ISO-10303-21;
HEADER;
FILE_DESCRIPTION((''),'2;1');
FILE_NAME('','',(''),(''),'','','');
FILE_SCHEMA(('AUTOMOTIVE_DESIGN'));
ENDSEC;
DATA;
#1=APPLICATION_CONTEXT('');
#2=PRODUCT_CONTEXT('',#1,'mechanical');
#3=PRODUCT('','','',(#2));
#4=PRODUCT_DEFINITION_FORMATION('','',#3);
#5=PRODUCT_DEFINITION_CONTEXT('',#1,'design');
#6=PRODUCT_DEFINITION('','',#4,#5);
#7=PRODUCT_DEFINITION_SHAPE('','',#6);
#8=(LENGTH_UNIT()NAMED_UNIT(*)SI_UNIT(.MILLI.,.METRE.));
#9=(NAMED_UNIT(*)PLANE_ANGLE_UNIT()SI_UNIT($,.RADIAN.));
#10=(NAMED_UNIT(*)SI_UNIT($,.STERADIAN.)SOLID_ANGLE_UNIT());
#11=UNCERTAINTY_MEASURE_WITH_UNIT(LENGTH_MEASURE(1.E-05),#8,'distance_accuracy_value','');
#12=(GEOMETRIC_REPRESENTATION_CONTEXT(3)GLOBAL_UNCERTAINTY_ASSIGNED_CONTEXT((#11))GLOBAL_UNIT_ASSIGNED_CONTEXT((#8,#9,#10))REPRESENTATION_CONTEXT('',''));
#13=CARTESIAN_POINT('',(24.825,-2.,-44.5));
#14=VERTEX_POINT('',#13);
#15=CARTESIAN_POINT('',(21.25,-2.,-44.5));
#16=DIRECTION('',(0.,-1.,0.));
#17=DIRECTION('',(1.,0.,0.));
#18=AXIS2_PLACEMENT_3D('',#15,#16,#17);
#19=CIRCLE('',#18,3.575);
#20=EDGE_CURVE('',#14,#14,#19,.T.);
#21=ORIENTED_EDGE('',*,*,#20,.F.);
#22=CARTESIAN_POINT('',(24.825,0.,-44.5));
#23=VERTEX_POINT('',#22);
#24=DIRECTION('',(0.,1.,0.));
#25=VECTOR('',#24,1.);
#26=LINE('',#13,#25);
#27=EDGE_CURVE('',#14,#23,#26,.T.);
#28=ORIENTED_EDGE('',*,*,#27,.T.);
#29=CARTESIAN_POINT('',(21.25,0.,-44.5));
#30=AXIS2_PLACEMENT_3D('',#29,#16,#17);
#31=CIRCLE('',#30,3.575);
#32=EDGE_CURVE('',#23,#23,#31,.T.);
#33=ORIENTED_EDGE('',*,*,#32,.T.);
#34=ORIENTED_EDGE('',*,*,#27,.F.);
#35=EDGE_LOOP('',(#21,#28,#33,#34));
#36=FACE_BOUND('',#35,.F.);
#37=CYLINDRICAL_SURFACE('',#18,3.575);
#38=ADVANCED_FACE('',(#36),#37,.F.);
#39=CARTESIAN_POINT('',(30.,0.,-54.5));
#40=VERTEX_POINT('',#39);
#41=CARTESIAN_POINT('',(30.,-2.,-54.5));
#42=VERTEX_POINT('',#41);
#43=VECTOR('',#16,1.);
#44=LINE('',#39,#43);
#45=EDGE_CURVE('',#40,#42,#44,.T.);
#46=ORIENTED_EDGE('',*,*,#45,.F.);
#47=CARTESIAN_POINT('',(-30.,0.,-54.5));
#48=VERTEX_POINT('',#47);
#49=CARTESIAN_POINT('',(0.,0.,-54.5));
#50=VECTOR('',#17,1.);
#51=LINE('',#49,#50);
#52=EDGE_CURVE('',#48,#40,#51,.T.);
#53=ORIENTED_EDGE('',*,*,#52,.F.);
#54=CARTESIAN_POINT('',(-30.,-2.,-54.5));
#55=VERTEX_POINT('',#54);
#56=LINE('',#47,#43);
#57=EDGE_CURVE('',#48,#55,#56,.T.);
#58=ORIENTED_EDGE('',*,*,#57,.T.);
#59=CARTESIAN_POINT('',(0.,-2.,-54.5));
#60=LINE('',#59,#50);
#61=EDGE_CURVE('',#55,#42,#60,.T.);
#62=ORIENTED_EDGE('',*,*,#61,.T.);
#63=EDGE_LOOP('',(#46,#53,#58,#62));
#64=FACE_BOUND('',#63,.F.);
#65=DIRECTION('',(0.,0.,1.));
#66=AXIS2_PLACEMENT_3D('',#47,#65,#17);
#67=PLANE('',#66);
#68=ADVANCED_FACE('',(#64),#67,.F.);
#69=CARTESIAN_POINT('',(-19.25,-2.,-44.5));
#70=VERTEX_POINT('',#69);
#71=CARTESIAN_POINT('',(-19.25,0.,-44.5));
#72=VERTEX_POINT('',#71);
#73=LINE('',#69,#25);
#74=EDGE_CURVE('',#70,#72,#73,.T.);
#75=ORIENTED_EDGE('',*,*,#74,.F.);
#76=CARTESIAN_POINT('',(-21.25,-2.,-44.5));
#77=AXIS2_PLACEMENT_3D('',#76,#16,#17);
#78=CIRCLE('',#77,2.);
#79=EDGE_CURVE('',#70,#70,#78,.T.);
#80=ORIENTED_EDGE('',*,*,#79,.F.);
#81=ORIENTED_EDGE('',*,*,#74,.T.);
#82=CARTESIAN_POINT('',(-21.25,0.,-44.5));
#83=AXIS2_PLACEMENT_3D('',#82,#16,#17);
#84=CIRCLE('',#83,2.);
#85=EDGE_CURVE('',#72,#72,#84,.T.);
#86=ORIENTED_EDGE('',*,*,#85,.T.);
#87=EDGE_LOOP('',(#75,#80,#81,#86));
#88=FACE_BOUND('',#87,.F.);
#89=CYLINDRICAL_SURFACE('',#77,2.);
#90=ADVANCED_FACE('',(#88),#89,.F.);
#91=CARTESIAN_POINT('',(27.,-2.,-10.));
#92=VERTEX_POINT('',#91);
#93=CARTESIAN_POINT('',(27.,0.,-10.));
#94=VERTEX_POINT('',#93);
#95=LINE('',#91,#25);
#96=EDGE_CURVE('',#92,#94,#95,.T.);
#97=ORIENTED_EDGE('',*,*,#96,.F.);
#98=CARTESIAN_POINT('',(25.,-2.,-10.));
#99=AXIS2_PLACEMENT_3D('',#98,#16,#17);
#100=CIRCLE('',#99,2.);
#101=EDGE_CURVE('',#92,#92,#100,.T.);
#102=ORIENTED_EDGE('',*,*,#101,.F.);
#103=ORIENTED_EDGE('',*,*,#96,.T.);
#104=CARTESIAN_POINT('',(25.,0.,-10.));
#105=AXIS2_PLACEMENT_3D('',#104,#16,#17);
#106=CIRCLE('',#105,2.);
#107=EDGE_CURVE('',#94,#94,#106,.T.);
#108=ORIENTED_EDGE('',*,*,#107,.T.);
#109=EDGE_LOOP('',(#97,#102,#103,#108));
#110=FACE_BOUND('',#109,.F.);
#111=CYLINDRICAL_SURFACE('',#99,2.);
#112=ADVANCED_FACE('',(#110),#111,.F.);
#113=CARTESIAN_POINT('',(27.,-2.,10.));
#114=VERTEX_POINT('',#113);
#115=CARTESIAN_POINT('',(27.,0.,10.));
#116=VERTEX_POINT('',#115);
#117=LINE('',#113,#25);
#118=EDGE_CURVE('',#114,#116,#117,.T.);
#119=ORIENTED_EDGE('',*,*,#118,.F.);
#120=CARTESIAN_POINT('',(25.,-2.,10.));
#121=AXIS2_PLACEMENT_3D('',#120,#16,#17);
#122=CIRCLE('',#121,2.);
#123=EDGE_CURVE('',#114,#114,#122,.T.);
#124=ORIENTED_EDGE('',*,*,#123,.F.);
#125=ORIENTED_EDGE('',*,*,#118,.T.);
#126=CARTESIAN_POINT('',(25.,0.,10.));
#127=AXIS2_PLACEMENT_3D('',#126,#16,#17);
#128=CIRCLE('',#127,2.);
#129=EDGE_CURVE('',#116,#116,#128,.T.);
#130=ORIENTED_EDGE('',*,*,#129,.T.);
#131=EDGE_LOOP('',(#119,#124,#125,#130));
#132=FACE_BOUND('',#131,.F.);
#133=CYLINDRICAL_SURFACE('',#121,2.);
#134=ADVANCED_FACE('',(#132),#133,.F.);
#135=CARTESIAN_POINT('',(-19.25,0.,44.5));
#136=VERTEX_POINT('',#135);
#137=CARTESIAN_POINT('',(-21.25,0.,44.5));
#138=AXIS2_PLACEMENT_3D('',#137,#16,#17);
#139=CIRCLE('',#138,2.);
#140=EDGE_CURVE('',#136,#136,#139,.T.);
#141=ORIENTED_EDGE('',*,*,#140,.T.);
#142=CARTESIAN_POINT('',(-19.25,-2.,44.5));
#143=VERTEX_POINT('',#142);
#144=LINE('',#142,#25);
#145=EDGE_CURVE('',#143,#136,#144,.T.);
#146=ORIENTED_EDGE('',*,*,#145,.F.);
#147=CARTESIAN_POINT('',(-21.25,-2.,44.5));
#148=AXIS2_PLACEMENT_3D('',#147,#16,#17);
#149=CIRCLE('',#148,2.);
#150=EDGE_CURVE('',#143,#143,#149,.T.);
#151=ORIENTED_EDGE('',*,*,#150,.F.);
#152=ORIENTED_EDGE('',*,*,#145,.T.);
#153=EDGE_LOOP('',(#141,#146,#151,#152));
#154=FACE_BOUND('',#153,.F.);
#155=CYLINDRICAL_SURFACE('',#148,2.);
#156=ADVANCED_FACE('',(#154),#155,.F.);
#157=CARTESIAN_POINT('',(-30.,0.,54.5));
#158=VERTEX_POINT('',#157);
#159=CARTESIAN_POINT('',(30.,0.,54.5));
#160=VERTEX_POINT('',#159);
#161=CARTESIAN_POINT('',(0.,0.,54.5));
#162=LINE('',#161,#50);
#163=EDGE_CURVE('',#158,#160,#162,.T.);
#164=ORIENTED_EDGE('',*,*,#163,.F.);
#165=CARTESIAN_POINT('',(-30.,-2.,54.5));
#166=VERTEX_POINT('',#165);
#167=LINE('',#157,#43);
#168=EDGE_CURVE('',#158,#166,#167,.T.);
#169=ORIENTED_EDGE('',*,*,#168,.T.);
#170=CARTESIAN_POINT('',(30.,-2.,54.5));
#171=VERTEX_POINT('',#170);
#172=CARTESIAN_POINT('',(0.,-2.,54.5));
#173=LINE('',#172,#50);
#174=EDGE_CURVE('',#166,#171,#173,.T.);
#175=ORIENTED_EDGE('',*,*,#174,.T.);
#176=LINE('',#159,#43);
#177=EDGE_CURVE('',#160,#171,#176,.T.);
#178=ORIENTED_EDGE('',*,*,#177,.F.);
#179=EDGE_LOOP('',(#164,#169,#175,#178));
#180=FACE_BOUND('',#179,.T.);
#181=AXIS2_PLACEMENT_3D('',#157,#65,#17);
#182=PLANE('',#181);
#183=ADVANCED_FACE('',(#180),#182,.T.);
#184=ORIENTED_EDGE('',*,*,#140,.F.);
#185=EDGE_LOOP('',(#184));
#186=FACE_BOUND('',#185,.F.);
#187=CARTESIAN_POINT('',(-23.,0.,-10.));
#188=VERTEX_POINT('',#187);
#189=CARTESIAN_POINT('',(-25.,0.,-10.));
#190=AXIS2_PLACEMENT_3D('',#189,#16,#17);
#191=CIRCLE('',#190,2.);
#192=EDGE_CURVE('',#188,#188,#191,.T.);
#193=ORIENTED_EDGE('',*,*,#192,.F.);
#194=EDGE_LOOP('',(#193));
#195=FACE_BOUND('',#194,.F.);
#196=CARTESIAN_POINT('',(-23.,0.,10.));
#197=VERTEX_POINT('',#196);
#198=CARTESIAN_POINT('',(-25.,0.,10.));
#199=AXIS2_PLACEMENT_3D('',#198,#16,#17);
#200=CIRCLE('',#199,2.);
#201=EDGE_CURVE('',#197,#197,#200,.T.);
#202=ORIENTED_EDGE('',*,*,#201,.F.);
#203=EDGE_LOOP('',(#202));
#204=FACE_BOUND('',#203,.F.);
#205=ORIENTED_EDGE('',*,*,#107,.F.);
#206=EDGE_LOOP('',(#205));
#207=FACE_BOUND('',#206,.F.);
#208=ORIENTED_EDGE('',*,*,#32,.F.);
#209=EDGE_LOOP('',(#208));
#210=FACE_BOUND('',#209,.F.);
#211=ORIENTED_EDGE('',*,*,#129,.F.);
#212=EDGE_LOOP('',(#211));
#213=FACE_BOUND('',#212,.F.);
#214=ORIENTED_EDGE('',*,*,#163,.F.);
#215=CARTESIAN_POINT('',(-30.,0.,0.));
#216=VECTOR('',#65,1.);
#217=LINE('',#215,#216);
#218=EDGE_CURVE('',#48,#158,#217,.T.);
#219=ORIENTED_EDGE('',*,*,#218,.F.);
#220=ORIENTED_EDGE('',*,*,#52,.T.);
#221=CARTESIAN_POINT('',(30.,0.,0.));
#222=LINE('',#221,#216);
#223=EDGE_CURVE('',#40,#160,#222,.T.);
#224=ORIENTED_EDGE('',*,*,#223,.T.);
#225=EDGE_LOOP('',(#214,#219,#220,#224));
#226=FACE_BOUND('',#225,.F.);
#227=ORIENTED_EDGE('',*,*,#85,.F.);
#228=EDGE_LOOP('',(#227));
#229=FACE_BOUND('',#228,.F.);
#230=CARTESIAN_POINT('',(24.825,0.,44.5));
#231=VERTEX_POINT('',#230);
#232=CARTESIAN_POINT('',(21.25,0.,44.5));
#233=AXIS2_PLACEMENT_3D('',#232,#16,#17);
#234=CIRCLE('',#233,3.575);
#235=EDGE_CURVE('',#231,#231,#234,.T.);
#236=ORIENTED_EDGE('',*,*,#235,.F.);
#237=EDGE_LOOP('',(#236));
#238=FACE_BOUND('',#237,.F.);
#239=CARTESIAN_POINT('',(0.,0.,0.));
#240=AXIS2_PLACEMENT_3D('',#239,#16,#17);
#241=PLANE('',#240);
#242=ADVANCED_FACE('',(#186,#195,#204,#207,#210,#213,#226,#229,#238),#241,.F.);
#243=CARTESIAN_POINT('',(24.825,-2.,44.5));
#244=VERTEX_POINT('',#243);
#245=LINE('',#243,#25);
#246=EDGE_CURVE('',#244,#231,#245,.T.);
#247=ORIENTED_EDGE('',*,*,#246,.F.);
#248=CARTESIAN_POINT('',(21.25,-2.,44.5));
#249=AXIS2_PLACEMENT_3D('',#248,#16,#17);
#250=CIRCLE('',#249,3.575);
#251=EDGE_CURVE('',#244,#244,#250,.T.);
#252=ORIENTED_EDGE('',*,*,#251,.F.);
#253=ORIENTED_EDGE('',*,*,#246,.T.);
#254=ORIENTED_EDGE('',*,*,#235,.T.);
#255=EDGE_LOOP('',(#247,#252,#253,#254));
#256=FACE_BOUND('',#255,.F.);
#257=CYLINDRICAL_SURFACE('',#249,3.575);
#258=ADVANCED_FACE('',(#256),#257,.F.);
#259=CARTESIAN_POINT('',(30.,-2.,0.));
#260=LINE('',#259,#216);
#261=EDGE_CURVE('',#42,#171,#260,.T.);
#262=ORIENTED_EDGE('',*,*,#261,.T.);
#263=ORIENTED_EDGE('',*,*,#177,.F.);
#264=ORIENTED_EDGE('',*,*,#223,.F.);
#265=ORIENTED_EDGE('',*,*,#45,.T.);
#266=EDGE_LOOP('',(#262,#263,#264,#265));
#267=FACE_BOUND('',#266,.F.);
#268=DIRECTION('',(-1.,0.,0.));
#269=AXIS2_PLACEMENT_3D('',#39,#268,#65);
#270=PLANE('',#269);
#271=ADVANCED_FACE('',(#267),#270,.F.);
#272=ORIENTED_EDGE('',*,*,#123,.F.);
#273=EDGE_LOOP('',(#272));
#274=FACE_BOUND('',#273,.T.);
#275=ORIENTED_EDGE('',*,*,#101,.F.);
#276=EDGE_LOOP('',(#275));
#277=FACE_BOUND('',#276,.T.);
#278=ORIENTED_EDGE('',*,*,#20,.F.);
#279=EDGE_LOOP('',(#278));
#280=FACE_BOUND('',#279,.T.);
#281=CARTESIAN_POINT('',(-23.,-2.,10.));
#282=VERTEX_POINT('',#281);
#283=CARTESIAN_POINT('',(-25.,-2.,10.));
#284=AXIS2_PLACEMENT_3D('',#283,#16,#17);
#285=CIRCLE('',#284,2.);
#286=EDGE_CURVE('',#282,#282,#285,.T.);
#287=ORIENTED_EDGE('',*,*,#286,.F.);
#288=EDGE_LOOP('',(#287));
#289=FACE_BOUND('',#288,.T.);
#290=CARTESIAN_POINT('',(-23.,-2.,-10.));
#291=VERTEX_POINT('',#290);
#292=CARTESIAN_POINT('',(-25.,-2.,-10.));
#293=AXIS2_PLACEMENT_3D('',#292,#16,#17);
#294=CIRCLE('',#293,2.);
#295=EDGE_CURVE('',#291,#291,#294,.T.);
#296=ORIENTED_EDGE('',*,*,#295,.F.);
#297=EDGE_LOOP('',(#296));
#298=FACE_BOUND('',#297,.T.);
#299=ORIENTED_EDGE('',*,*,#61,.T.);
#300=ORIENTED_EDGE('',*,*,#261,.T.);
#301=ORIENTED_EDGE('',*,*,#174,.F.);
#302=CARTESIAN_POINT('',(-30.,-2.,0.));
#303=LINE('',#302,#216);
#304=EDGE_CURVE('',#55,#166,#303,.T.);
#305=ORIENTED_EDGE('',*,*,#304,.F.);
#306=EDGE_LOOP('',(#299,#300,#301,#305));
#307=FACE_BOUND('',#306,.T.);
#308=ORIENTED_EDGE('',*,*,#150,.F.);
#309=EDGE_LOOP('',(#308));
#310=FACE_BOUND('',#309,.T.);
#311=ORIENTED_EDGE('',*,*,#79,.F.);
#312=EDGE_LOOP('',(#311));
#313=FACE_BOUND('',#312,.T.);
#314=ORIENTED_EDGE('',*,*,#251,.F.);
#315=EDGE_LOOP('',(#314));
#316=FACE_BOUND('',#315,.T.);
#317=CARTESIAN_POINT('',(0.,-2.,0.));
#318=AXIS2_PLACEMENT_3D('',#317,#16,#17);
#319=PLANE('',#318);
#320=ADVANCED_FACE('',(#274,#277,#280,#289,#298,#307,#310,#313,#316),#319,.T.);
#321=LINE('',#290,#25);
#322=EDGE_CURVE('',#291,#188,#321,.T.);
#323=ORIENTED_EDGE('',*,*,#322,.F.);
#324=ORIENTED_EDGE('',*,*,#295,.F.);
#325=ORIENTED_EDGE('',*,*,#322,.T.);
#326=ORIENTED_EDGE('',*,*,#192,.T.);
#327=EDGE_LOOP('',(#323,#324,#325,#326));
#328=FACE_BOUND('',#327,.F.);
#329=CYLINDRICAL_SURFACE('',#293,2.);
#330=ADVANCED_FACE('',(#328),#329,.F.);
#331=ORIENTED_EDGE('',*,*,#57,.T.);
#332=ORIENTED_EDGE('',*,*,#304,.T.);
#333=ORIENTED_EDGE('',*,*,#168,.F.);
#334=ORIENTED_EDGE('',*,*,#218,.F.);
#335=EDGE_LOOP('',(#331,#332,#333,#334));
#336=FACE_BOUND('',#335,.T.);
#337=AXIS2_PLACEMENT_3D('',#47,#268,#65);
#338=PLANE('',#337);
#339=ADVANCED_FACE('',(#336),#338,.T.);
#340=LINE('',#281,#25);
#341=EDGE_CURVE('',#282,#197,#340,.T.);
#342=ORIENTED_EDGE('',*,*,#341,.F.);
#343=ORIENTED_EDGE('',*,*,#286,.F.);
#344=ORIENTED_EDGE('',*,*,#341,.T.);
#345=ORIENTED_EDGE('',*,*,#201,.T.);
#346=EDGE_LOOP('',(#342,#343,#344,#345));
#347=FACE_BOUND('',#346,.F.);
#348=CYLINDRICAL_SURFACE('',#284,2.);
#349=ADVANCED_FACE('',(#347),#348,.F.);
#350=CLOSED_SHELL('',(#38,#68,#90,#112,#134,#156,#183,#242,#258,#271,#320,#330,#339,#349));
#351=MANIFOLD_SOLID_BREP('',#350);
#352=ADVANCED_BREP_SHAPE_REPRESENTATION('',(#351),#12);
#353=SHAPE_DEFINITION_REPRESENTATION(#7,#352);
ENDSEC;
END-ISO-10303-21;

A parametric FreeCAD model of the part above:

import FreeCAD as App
import Part
import Sketcher

V = App.Vector
Q = App.Units.Quantity


def add_polygon(sketch, points):
    """Adds a closed chain of lines whose ends are joined by coincident constraints."""
    first, n = sketch.GeometryCount, len(points)
    for a, b in zip(points, points[1:] + points[:1]):
        sketch.addGeometry(Part.LineSegment(App.Vector(*a, 0), App.Vector(*b, 0)), False)
    for i in range(n):
        sketch.addConstraint(Sketcher.Constraint("Coincident", first + i, 2, first + (i + 1) % n, 1))

doc = App.newDocument("Part")
body = doc.addObject("PartDesign::Body", "Body")

sketch1 = body.newObject("Sketcher::SketchObject", "Sketch")
sketch1.AttachmentSupport = (doc.getObject("XZ_Plane"), [""])
sketch1.MapMode = "FlatFace"
add_polygon(sketch1, [(-30, 54), (-30, -54), (30, -54), (30, 54)])
sketch1.addConstraint([
    Sketcher.Constraint("Vertical", 0),
    Sketcher.Constraint("Horizontal", 1),
    Sketcher.Constraint("Vertical", 2),
    Sketcher.Constraint("Horizontal", 3),
    Sketcher.Constraint("Symmetric", 0, 2, 2, 2, -1, 1),
    Sketcher.Constraint("DistanceX", 1, 1, 1, 2, Q("60 mm")),
    Sketcher.Constraint("DistanceY", 0, 2, 0, 1, Q("109 mm")),
])
pad1 = body.newObject("PartDesign::Pad", "Pad")
pad1.Profile = sketch1
pad1.Length = 2

sketch2 = body.newObject("Sketcher::SketchObject", "Sketch001")
sketch2.AttachmentSupport = (doc.getObject("XZ_Plane"), [""])
sketch2.MapMode = "FlatFace"
sketch2.AttachmentOffset = App.Placement(V(0, 0, 2), App.Rotation())
sketch2.addGeometry([
    Part.Circle(V(-21.2, 44.5, 0), V(0, 0, 1), 2),
    Part.Circle(V(-21.2, -44.5, 0), V(0, 0, 1), 2),
    Part.Circle(V(21.2, 44.5, 0), V(0, 0, 1), 3.6),
    Part.Circle(V(21.2, -44.5, 0), V(0, 0, 1), 3.6),
], False)
sketch2.addConstraint([
    Sketcher.Constraint("Equal", 0, 1),
    Sketcher.Constraint("Equal", 2, 3),
    Sketcher.Constraint("Symmetric", 1, 3, 2, 3, -1, 1),
    Sketcher.Constraint("Symmetric", 0, 3, 3, 3, -1, 1),
    Sketcher.Constraint("Symmetric", 0, 3, 2, 3, -2),
    Sketcher.Constraint("Diameter", 0, Q("4 mm")),
    Sketcher.Constraint("Diameter", 2, Q("7.15 mm")),
    Sketcher.Constraint("DistanceY", 1, 3, 0, 3, Q("89 mm")),
    Sketcher.Constraint("DistanceX", 0, 3, 2, 3, Q("42.5 mm")),
])
pocket1 = body.newObject("PartDesign::Pocket", "Pocket")
pocket1.Profile = sketch2
pocket1.Type = "ThroughAll"

sketch3 = body.newObject("Sketcher::SketchObject", "Sketch002")
sketch3.AttachmentSupport = (doc.getObject("XZ_Plane"), [""])
sketch3.MapMode = "FlatFace"
sketch3.AttachmentOffset = App.Placement(V(0, 0, 2), App.Rotation())
sketch3.addGeometry([
    Part.Circle(V(-25, 10, 0), V(0, 0, 1), 2),
    Part.Circle(V(25, 10, 0), V(0, 0, 1), 2),
    Part.Circle(V(-25, -10, 0), V(0, 0, 1), 2),
    Part.Circle(V(25, -10, 0), V(0, 0, 1), 2),
], False)
sketch3.addConstraint([
    Sketcher.Constraint("Equal", 0, 1),
    Sketcher.Constraint("Equal", 1, 2),
    Sketcher.Constraint("Equal", 2, 3),
    Sketcher.Constraint("Symmetric", 1, 3, 2, 3, -1, 1),
    Sketcher.Constraint("Symmetric", 0, 3, 3, 3, -1, 1),
    Sketcher.Constraint("Symmetric", 0, 3, 1, 3, -2),
    Sketcher.Constraint("Diameter", 0, Q("4 mm")),
    Sketcher.Constraint("DistanceX", 0, 3, -1, 1, Q("25 mm")),
    Sketcher.Constraint("DistanceY", -1, 1, 0, 3, Q("10 mm")),
])
pocket2 = body.newObject("PartDesign::Pocket", "Pocket001")
pocket2.Profile = sketch3
pocket2.Type = "ThroughAll"

doc.recompute()
